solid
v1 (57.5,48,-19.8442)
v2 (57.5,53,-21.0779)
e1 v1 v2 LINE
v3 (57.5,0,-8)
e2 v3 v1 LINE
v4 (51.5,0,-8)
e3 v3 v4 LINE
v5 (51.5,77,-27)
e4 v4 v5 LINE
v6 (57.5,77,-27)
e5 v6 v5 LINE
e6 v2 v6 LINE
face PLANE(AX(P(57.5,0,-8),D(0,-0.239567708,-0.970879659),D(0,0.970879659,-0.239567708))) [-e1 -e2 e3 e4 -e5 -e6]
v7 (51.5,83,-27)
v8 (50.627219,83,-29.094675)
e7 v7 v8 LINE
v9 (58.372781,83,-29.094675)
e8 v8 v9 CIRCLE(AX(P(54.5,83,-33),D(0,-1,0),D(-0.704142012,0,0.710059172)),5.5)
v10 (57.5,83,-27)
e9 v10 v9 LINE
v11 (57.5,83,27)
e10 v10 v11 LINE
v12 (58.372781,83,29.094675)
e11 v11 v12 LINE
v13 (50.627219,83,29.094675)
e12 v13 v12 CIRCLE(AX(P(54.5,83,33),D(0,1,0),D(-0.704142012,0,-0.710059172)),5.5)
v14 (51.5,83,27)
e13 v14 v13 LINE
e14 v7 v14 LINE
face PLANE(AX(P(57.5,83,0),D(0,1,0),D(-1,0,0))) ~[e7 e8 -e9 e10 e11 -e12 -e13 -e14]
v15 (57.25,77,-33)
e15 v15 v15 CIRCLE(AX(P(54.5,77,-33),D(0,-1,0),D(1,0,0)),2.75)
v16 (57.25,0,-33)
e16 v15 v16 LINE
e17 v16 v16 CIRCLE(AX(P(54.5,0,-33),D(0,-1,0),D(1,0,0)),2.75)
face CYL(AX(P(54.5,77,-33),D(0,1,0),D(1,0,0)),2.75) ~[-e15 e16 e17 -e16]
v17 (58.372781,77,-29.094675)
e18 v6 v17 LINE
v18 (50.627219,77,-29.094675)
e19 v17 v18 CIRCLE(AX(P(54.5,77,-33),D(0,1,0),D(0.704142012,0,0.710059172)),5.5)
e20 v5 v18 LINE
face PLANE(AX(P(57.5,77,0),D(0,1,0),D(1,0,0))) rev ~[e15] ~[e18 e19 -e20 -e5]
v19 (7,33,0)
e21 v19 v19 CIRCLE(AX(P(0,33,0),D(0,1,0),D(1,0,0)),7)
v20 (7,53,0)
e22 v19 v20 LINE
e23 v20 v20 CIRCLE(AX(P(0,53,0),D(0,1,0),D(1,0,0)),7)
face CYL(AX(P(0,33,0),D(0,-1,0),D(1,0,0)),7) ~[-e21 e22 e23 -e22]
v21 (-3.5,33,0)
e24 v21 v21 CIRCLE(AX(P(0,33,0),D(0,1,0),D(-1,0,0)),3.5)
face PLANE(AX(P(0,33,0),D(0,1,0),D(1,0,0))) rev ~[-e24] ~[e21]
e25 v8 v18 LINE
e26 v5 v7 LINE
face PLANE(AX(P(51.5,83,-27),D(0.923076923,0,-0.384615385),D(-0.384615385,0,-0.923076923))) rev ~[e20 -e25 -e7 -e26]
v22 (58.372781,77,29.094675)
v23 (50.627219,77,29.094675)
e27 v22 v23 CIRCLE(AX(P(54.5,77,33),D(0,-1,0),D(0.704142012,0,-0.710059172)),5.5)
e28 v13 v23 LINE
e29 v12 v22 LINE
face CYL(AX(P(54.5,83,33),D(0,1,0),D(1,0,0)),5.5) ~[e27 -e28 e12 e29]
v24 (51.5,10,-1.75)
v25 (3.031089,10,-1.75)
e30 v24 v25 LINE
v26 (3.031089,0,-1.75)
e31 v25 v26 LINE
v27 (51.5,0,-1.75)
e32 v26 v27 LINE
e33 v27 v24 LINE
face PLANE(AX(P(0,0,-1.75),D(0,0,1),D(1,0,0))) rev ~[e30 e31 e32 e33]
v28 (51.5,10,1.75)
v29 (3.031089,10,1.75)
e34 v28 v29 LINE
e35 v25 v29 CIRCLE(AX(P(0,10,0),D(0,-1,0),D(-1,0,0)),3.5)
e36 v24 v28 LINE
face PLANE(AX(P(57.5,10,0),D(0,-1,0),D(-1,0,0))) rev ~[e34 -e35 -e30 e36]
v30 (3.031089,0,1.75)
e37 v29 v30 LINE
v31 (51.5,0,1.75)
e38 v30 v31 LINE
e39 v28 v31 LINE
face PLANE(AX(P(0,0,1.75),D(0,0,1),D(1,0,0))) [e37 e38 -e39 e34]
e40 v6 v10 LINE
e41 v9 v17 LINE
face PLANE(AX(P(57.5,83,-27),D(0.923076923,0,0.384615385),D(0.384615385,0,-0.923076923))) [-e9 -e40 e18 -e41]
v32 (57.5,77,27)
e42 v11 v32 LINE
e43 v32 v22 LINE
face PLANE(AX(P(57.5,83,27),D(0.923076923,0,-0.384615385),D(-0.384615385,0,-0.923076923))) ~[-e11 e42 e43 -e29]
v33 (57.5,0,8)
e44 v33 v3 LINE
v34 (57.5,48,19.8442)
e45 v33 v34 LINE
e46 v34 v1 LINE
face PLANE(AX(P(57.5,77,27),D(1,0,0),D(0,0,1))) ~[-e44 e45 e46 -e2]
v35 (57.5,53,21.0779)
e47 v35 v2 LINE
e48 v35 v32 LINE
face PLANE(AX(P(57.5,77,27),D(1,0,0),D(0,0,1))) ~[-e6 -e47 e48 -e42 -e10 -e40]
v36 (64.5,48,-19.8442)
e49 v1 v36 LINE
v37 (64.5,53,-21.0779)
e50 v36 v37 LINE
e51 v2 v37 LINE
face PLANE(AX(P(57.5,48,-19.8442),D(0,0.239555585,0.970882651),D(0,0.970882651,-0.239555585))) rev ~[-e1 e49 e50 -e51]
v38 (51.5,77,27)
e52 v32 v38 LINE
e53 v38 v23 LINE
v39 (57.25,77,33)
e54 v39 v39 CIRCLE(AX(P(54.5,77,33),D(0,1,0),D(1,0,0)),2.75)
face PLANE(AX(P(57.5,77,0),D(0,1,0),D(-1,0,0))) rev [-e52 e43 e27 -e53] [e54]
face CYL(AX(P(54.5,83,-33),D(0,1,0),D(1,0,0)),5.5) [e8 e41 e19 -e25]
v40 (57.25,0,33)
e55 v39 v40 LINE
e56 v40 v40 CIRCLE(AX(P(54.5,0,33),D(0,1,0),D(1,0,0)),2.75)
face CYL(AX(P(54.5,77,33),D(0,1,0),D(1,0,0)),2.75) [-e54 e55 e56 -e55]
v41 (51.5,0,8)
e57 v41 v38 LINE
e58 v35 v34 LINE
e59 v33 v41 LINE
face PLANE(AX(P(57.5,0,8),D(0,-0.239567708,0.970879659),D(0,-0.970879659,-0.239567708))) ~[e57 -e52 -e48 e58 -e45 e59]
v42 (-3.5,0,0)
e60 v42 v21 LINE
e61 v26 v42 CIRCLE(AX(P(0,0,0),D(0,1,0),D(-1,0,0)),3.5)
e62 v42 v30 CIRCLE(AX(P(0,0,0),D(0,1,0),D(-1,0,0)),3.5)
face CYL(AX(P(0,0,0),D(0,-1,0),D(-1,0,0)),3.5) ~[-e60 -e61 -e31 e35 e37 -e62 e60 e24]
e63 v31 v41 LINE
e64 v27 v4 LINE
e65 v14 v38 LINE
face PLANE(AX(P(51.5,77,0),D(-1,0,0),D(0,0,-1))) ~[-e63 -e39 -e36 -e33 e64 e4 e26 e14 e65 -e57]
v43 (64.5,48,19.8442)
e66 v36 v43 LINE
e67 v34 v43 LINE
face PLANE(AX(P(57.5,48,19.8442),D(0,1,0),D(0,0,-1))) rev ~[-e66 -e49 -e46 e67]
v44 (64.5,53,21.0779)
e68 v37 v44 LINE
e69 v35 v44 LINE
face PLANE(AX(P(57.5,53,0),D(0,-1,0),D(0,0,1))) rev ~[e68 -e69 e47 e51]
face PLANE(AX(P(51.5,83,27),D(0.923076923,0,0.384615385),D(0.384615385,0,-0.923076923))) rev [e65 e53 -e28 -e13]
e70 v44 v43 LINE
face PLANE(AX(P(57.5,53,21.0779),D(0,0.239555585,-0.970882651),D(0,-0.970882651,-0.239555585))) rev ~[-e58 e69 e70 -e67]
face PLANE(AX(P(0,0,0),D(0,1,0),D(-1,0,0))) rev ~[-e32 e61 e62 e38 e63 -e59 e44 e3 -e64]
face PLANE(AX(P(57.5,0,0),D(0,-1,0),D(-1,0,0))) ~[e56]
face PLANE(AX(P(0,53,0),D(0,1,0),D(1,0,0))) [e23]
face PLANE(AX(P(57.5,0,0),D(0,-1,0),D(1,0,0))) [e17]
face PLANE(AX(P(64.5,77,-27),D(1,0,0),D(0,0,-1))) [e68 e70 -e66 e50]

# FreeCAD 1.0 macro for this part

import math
import FreeCAD as App
import Part
import Sketcher
from FreeCAD import Vector
Q = App.Units.Quantity

doc = App.newDocument("Part")
params = doc.addObject("Spreadsheet::Sheet", "Params")
for row, (alias, value) in enumerate([
    ("sketch1_diameter", "7 mm"),
    ("pad1_length", "33 mm"),
    ("sketch2_diameter", "14 mm"),
    ("pad2_length", "20 mm"),
    ("sketch3_height", "10 mm"),
    ("sketch3_width", "57.5 mm"),
    ("pad3_length", "3.5 mm"),
    ("sketch4_width", "77 mm"),
    ("sketch4_height", "8 mm"),
    ("sketch4_height2", "27 mm"),
    ("pad4_length", "6 mm"),
    ("sketch5_width", "6 mm"),
    ("sketch5_height", "27 mm"),
    ("pad5_length", "6 mm"),
    ("sketch6_radius", "5.5 mm"),
    ("pad6_length", "6 mm"),
    ("sketch7_diameter", "5.5 mm"),
    ("pad7_length", "77 mm"),
    ("pad8_length", "7 mm"),
], start=1):
    params.set(f"A{row}", alias)
    params.set(f"B{row}", "=" + value)
    params.setAlias(f"B{row}", alias)

body = doc.addObject("PartDesign::Body", "Body")

sketch1 = body.newObject("Sketcher::SketchObject", "Sketch")
sketch1.AttachmentSupport = (doc.getObject("XZ_Plane"), [""])
sketch1.MapMode = "FlatFace"
sketch1.addGeometry(Part.Circle(Vector(0, 0, 0), Vector(0, 0, 1), 3.5), False)
sketch1.addConstraint([
    Sketcher.Constraint("Coincident", 0, 3, -1, 1),
    Sketcher.Constraint("Diameter", 0, 7.0),
])
sketch1.setExpression("Constraints[1]", "Params.sketch1_diameter")
pad1 = body.newObject("PartDesign::Pad", "Pad")
pad1.Profile = sketch1
pad1.setExpression("Length", "Params.pad1_length")
pad1.Reversed = True

sketch2 = body.newObject("Sketcher::SketchObject", "Sketch001")
sketch2.AttachmentSupport = (doc.getObject("XZ_Plane"), [""])
sketch2.MapMode = "FlatFace"
sketch2.AttachmentOffset = App.Placement(Vector(0, 0, -33), App.Rotation())
sketch2.addGeometry(Part.Circle(Vector(0, 0, 0), Vector(0, 0, 1), 7), False)
sketch2.addConstraint([
    Sketcher.Constraint("Coincident", 0, 3, -1, 1),
    Sketcher.Constraint("Diameter", 0, 14.0),
])
sketch2.setExpression("Constraints[1]", "Params.sketch2_diameter")
pad2 = body.newObject("PartDesign::Pad", "Pad001")
pad2.Profile = sketch2
pad2.setExpression("Length", "Params.pad2_length")
pad2.Reversed = True

sketch3 = body.newObject("Sketcher::SketchObject", "Sketch002")
sketch3.AttachmentSupport = (doc.getObject("XY_Plane"), [""])
sketch3.MapMode = "FlatFace"
sketch3.addGeometry([
    Part.LineSegment(Vector(0, 10, 0), Vector(0, 0, 0)),
    Part.LineSegment(Vector(0, 0, 0), Vector(58, 0, 0)),
    Part.LineSegment(Vector(58, 0, 0), Vector(58, 10, 0)),
    Part.LineSegment(Vector(58, 10, 0), Vector(0, 10, 0)),
], False)
sketch3.addConstraint([
    Sketcher.Constraint("Coincident", 0, 2, 1, 1),
    Sketcher.Constraint("Coincident", 1, 2, 2, 1),
    Sketcher.Constraint("Coincident", 2, 2, 3, 1),
    Sketcher.Constraint("Coincident", 3, 2, 0, 1),
    Sketcher.Constraint("Vertical", 0),
    Sketcher.Constraint("Horizontal", 1),
    Sketcher.Constraint("Vertical", 2),
    Sketcher.Constraint("Horizontal", 3),
    Sketcher.Constraint("Coincident", 0, 2, -1, 1),
    Sketcher.Constraint("DistanceY", 0, 2, 0, 1, 10.0),
    Sketcher.Constraint("DistanceX", 1, 1, 1, 2, 57.5),
])
sketch3.setExpression("Constraints[9]", "Params.sketch3_height")
sketch3.setExpression("Constraints[10]", "Params.sketch3_width")
pad3 = body.newObject("PartDesign::Pad", "Pad002")
pad3.Profile = sketch3
pad3.setExpression("Length", "Params.pad3_length")
pad3.Midplane = True

sketch4 = body.newObject("Sketcher::SketchObject", "Sketch003")
sketch4.AttachmentSupport = (doc.getObject("YZ_Plane"), [""])
sketch4.MapMode = "FlatFace"
sketch4.AttachmentOffset = App.Placement(Vector(0, 0, 57.5), App.Rotation())
sketch4.addGeometry([
    Part.LineSegment(Vector(77, 0, 0), Vector(0, 0, 0)),
    Part.LineSegment(Vector(0, 0, 0), Vector(0, -8, 0)),
    Part.LineSegment(Vector(0, -8, 0), Vector(77, -27, 0)),
    Part.LineSegment(Vector(77, -27, 0), Vector(77, 0, 0)),
], False)
sketch4.addConstraint([
    Sketcher.Constraint("Coincident", 0, 2, 1, 1),
    Sketcher.Constraint("Coincident", 1, 2, 2, 1),
    Sketcher.Constraint("Coincident", 2, 2, 3, 1),
    Sketcher.Constraint("Coincident", 3, 2, 0, 1),
    Sketcher.Constraint("Horizontal", 0),
    Sketcher.Constraint("Vertical", 1),
    Sketcher.Constraint("Vertical", 3),
    Sketcher.Constraint("Coincident", 0, 2, -1, 1),
    Sketcher.Constraint("DistanceX", 0, 2, 0, 1, 77.0),
    Sketcher.Constraint("DistanceY", 1, 2, 1, 1, 8.0),
    Sketcher.Constraint("DistanceY", 3, 1, 3, 2, 27.0),
])
sketch4.setExpression("Constraints[8]", "Params.sketch4_width")
sketch4.setExpression("Constraints[9]", "Params.sketch4_height")
sketch4.setExpression("Constraints[10]", "Params.sketch4_height2")
pad4 = body.newObject("PartDesign::Pad", "Pad003")
pad4.Profile = sketch4
pad4.setExpression("Length", "Params.pad4_length")
pad4.Reversed = True

sketch5 = body.newObject("Sketcher::SketchObject", "Sketch004")
sketch5.AttachmentSupport = (doc.getObject("XZ_Plane"), [""])
sketch5.MapMode = "FlatFace"
sketch5.AttachmentOffset = App.Placement(Vector(0, 0, -77), App.Rotation())
sketch5.addGeometry([
    Part.LineSegment(Vector(58, 0, 0), Vector(58, -27, 0)),
    Part.LineSegment(Vector(58, -27, 0), Vector(52, -27, 0)),
    Part.LineSegment(Vector(52, -27, 0), Vector(52, 0, 0)),
    Part.LineSegment(Vector(52, 0, 0), Vector(58, 0, 0)),
], False)
sketch5.addConstraint([
    Sketcher.Constraint("Coincident", 0, 2, 1, 1),
    Sketcher.Constraint("Coincident", 1, 2, 2, 1),
    Sketcher.Constraint("Coincident", 2, 2, 3, 1),
    Sketcher.Constraint("Coincident", 3, 2, 0, 1),
    Sketcher.Constraint("Vertical", 0),
    Sketcher.Constraint("Horizontal", 1),
    Sketcher.Constraint("Vertical", 2),
    Sketcher.Constraint("Horizontal", 3),
    Sketcher.Constraint("PointOnObject", 2, 2, -1),
    Sketcher.Constraint("DistanceX", 1, 2, 1, 1, 6.0),
    Sketcher.Constraint("DistanceY", 0, 2, 0, 1, 27.0),
    Sketcher.Constraint("DistanceX", -1, 1, 0, 2, 57.5),
])
sketch5.setExpression("Constraints[9]", "Params.sketch5_width")
sketch5.setExpression("Constraints[10]", "Params.sketch5_height")
pad5 = body.newObject("PartDesign::Pad", "Pad004")
pad5.Profile = sketch5
pad5.setExpression("Length", "Params.pad5_length")
pad5.Reversed = True

sketch6 = body.newObject("Sketcher::SketchObject", "Sketch005")
sketch6.AttachmentSupport = (doc.getObject("XZ_Plane"), [""])
sketch6.MapMode = "FlatFace"
sketch6.AttachmentOffset = App.Placement(Vector(0, 0, -83), App.Rotation())
sketch6.addGeometry([
    Part.LineSegment(Vector(50.6, -29.1, 0), Vector(51.5, -27, 0)),
    Part.LineSegment(Vector(51.5, -27, 0), Vector(57.5, -27, 0)),
    Part.LineSegment(Vector(57.5, -27, 0), Vector(58.4, -29.1, 0)),
    Part.ArcOfCircle(Part.Circle(Vector(54.5, -33, 0), Vector(0, 0, 1), 5.5), math.radians(135), math.radians(405)),
], False)
sketch6.addConstraint([
    Sketcher.Constraint("Coincident", 0, 2, 1, 1),
    Sketcher.Constraint("Coincident", 1, 2, 2, 1),
    Sketcher.Constraint("Coincident", 2, 2, 3, 2),
    Sketcher.Constraint("Coincident", 3, 1, 0, 1),
    Sketcher.Constraint("Horizontal", 1),
    Sketcher.Constraint("Horizontal", 2, 2, 3, 1),
    Sketcher.Constraint("Equal", 0, 2),
    Sketcher.Constraint("Radius", 3, 5.5),
    Sketcher.Constraint("DistanceY", 3, 3, -1, 1, 33.0),
    Sketcher.Constraint("DistanceX", 0, 2, 3, 3, 3.0),
    Sketcher.Constraint("DistanceY", 0, 2, -1, 1, 27.0),
    Sketcher.Constraint("DistanceX", -1, 1, 3, 3, 54.5),
    Sketcher.Constraint("Angle", 0, Q("67.3801 deg")),
])
sketch6.setExpression("Constraints[7]", "Params.sketch6_radius")
pad6 = body.newObject("PartDesign::Pad", "Pad005")
pad6.Profile = sketch6
pad6.setExpression("Length", "Params.pad6_length")

sketch7 = body.newObject("Sketcher::SketchObject", "Sketch006")
sketch7.AttachmentSupport = (doc.getObject("XZ_Plane"), [""])
sketch7.MapMode = "FlatFace"
sketch7.AttachmentOffset = App.Placement(Vector(0, 0, -77), App.Rotation())
sketch7.addGeometry(Part.Circle(Vector(54.5, -33, 0), Vector(0, 0, 1), 2.8), False)
sketch7.addConstraint([
    Sketcher.Constraint("Diameter", 0, 5.5),
    Sketcher.Constraint("DistanceY", 0, 3, -1, 1, 33.0),
    Sketcher.Constraint("DistanceX", -1, 1, 0, 3, 54.5),
])
sketch7.setExpression("Constraints[0]", "Params.sketch7_diameter")
pad7 = body.newObject("PartDesign::Pad", "Pad006")
pad7.Profile = sketch7
pad7.setExpression("Length", "Params.pad7_length")
doc.recompute()

mirrored = body.newObject("PartDesign::Mirrored", "Mirrored")
mirrored.Originals = [pad4, pad6, pad5, pad7]
mirrored.MirrorPlane = (doc.getObject("XY_Plane"), [""])
body.Tip = mirrored

sketch8 = body.newObject("Sketcher::SketchObject", "Sketch007")
sketch8.AttachmentSupport = (doc.getObject("YZ_Plane"), [""])
sketch8.MapMode = "FlatFace"
sketch8.AttachmentOffset = App.Placement(Vector(0, 0, 57.5), App.Rotation())
sketch8.addGeometry([
    Part.LineSegment(Vector(48, 20, 0), Vector(48, -20, 0)),
    Part.LineSegment(Vector(48, -20, 0), Vector(53, -21, 0)),
    Part.LineSegment(Vector(53, -21, 0), Vector(53, 21, 0)),
    Part.LineSegment(Vector(53, 21, 0), Vector(48, 20, 0)),
], False)
sketch8.addConstraint([
    Sketcher.Constraint("Coincident", 0, 2, 1, 1),
    Sketcher.Constraint("Coincident", 1, 2, 2, 1),
    Sketcher.Constraint("Coincident", 2, 2, 3, 1),
    Sketcher.Constraint("Coincident", 3, 2, 0, 1),
    Sketcher.Constraint("Vertical", 0),
    Sketcher.Constraint("Vertical", 2),
    Sketcher.Constraint("Equal", 1, 3),
    Sketcher.Constraint("DistanceX", 0, 2, 1, 2, 5.0),
    Sketcher.Constraint("DistanceX", -1, 1, 0, 2, 48.0),
    Sketcher.Constraint("Angle", 1, Q("-13.8603 deg")),
    Sketcher.Constraint("DistanceY", 0, 2, 0, 1, 39.6884),
    Sketcher.Constraint("DistanceY", 1, 2, -1, 1, 21.078),
])
pad8 = body.newObject("PartDesign::Pad", "Pad007")
pad8.Profile = sketch8
pad8.setExpression("Length", "Params.pad8_length")

doc.recompute()
